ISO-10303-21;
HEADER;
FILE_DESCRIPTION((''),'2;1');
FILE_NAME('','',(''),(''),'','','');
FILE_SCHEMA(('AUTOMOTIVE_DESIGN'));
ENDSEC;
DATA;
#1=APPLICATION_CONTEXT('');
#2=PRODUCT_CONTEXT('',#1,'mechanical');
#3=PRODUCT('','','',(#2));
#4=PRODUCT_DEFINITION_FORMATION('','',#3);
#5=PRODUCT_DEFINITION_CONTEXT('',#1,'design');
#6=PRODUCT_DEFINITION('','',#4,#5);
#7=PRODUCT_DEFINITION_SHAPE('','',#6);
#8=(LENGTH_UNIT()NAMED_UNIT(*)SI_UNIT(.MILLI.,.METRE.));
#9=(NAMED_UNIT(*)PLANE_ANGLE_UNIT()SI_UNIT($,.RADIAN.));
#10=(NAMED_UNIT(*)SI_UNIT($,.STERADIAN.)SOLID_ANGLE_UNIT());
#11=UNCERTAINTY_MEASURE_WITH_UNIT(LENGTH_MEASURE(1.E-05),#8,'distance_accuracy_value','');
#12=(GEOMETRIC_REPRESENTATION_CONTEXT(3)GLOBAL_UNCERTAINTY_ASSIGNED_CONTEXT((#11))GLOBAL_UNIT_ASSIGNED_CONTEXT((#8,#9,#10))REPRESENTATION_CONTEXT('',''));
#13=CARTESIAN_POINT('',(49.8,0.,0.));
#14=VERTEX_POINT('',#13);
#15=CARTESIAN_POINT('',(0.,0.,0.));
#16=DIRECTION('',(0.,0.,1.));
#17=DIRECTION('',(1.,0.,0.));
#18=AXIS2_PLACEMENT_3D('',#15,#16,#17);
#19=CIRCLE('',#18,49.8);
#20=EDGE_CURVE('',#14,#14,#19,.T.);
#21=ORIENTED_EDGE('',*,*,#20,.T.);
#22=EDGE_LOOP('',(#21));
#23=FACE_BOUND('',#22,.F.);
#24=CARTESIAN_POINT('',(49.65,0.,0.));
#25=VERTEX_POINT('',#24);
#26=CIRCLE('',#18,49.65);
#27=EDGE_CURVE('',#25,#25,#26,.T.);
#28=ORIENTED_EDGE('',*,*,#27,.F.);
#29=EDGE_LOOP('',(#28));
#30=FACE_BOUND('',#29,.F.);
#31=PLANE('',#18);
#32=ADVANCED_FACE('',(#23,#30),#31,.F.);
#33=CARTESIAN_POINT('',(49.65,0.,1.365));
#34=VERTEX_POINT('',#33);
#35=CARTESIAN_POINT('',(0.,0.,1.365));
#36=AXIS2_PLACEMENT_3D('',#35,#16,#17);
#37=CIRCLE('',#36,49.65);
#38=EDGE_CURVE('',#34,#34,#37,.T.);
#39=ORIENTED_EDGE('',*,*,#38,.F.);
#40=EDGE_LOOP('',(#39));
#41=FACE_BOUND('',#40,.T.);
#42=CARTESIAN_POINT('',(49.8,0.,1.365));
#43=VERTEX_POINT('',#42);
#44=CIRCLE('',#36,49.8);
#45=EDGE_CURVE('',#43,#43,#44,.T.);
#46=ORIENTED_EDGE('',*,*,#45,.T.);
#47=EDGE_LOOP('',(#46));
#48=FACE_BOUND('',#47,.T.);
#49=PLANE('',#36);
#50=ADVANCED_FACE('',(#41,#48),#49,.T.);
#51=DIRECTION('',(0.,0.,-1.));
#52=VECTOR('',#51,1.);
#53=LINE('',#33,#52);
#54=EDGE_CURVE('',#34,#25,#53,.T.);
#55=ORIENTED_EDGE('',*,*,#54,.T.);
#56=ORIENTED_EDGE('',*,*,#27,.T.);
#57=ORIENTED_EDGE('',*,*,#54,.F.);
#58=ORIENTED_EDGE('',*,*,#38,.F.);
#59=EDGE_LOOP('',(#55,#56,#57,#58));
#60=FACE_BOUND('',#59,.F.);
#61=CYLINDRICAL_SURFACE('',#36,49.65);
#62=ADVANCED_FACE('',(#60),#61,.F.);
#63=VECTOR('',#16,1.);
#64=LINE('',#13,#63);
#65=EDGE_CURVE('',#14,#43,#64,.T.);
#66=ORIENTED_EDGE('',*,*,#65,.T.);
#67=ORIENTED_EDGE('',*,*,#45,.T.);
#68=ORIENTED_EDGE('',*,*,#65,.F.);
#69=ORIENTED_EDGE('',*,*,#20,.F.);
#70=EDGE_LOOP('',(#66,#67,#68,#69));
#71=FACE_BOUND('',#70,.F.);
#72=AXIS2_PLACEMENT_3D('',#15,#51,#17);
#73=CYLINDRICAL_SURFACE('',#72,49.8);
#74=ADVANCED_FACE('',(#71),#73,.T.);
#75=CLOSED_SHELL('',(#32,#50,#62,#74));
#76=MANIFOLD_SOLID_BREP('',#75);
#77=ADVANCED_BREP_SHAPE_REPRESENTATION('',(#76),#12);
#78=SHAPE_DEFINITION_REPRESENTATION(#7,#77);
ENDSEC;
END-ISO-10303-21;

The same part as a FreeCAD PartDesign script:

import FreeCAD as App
import Part
import Sketcher
from FreeCAD import Vector

doc = App.newDocument("Part")
body = doc.addObject("PartDesign::Body", "Body")

# Sketch on XY plane
sketch1 = body.newObject("Sketcher::SketchObject", "Sketch")
sketch1.AttachmentSupport = (doc.getObject("XY_Plane"), [""])
sketch1.MapMode = "FlatFace"
sketch1.addGeometry(Part.Circle(Vector(0, 0, 0), Vector(0, 0, 1), 49.8), False)
sketch1.addConstraint([
    Sketcher.Constraint("Coincident", 0, 3, -1, 1),
    Sketcher.Constraint("Diameter", 0, 99.6),
])
pad1 = body.newObject("PartDesign::Pad", "Pad")
pad1.Profile = sketch1
pad1.Length = 1.365

# Sketch on XY plane
sketch2 = body.newObject("Sketcher::SketchObject", "Sketch001")
sketch2.AttachmentSupport = (doc.getObject("XY_Plane"), [""])
sketch2.MapMode = "FlatFace"
sketch2.AttachmentOffset = App.Placement(Vector(0, 0, 1.365), App.Rotation())
sketch2.addGeometry(Part.Circle(Vector(0, 0, 0), Vector(0, 0, 1), 49.65), False)
sketch2.addConstraint([
    Sketcher.Constraint("Coincident", 0, 3, -1, 1),
    Sketcher.Constraint("Diameter", 0, 99.3),
])
pocket1 = body.newObject("PartDesign::Pocket", "Pocket")
pocket1.Profile = sketch2
pocket1.Type = "ThroughAll"

doc.recompute()
